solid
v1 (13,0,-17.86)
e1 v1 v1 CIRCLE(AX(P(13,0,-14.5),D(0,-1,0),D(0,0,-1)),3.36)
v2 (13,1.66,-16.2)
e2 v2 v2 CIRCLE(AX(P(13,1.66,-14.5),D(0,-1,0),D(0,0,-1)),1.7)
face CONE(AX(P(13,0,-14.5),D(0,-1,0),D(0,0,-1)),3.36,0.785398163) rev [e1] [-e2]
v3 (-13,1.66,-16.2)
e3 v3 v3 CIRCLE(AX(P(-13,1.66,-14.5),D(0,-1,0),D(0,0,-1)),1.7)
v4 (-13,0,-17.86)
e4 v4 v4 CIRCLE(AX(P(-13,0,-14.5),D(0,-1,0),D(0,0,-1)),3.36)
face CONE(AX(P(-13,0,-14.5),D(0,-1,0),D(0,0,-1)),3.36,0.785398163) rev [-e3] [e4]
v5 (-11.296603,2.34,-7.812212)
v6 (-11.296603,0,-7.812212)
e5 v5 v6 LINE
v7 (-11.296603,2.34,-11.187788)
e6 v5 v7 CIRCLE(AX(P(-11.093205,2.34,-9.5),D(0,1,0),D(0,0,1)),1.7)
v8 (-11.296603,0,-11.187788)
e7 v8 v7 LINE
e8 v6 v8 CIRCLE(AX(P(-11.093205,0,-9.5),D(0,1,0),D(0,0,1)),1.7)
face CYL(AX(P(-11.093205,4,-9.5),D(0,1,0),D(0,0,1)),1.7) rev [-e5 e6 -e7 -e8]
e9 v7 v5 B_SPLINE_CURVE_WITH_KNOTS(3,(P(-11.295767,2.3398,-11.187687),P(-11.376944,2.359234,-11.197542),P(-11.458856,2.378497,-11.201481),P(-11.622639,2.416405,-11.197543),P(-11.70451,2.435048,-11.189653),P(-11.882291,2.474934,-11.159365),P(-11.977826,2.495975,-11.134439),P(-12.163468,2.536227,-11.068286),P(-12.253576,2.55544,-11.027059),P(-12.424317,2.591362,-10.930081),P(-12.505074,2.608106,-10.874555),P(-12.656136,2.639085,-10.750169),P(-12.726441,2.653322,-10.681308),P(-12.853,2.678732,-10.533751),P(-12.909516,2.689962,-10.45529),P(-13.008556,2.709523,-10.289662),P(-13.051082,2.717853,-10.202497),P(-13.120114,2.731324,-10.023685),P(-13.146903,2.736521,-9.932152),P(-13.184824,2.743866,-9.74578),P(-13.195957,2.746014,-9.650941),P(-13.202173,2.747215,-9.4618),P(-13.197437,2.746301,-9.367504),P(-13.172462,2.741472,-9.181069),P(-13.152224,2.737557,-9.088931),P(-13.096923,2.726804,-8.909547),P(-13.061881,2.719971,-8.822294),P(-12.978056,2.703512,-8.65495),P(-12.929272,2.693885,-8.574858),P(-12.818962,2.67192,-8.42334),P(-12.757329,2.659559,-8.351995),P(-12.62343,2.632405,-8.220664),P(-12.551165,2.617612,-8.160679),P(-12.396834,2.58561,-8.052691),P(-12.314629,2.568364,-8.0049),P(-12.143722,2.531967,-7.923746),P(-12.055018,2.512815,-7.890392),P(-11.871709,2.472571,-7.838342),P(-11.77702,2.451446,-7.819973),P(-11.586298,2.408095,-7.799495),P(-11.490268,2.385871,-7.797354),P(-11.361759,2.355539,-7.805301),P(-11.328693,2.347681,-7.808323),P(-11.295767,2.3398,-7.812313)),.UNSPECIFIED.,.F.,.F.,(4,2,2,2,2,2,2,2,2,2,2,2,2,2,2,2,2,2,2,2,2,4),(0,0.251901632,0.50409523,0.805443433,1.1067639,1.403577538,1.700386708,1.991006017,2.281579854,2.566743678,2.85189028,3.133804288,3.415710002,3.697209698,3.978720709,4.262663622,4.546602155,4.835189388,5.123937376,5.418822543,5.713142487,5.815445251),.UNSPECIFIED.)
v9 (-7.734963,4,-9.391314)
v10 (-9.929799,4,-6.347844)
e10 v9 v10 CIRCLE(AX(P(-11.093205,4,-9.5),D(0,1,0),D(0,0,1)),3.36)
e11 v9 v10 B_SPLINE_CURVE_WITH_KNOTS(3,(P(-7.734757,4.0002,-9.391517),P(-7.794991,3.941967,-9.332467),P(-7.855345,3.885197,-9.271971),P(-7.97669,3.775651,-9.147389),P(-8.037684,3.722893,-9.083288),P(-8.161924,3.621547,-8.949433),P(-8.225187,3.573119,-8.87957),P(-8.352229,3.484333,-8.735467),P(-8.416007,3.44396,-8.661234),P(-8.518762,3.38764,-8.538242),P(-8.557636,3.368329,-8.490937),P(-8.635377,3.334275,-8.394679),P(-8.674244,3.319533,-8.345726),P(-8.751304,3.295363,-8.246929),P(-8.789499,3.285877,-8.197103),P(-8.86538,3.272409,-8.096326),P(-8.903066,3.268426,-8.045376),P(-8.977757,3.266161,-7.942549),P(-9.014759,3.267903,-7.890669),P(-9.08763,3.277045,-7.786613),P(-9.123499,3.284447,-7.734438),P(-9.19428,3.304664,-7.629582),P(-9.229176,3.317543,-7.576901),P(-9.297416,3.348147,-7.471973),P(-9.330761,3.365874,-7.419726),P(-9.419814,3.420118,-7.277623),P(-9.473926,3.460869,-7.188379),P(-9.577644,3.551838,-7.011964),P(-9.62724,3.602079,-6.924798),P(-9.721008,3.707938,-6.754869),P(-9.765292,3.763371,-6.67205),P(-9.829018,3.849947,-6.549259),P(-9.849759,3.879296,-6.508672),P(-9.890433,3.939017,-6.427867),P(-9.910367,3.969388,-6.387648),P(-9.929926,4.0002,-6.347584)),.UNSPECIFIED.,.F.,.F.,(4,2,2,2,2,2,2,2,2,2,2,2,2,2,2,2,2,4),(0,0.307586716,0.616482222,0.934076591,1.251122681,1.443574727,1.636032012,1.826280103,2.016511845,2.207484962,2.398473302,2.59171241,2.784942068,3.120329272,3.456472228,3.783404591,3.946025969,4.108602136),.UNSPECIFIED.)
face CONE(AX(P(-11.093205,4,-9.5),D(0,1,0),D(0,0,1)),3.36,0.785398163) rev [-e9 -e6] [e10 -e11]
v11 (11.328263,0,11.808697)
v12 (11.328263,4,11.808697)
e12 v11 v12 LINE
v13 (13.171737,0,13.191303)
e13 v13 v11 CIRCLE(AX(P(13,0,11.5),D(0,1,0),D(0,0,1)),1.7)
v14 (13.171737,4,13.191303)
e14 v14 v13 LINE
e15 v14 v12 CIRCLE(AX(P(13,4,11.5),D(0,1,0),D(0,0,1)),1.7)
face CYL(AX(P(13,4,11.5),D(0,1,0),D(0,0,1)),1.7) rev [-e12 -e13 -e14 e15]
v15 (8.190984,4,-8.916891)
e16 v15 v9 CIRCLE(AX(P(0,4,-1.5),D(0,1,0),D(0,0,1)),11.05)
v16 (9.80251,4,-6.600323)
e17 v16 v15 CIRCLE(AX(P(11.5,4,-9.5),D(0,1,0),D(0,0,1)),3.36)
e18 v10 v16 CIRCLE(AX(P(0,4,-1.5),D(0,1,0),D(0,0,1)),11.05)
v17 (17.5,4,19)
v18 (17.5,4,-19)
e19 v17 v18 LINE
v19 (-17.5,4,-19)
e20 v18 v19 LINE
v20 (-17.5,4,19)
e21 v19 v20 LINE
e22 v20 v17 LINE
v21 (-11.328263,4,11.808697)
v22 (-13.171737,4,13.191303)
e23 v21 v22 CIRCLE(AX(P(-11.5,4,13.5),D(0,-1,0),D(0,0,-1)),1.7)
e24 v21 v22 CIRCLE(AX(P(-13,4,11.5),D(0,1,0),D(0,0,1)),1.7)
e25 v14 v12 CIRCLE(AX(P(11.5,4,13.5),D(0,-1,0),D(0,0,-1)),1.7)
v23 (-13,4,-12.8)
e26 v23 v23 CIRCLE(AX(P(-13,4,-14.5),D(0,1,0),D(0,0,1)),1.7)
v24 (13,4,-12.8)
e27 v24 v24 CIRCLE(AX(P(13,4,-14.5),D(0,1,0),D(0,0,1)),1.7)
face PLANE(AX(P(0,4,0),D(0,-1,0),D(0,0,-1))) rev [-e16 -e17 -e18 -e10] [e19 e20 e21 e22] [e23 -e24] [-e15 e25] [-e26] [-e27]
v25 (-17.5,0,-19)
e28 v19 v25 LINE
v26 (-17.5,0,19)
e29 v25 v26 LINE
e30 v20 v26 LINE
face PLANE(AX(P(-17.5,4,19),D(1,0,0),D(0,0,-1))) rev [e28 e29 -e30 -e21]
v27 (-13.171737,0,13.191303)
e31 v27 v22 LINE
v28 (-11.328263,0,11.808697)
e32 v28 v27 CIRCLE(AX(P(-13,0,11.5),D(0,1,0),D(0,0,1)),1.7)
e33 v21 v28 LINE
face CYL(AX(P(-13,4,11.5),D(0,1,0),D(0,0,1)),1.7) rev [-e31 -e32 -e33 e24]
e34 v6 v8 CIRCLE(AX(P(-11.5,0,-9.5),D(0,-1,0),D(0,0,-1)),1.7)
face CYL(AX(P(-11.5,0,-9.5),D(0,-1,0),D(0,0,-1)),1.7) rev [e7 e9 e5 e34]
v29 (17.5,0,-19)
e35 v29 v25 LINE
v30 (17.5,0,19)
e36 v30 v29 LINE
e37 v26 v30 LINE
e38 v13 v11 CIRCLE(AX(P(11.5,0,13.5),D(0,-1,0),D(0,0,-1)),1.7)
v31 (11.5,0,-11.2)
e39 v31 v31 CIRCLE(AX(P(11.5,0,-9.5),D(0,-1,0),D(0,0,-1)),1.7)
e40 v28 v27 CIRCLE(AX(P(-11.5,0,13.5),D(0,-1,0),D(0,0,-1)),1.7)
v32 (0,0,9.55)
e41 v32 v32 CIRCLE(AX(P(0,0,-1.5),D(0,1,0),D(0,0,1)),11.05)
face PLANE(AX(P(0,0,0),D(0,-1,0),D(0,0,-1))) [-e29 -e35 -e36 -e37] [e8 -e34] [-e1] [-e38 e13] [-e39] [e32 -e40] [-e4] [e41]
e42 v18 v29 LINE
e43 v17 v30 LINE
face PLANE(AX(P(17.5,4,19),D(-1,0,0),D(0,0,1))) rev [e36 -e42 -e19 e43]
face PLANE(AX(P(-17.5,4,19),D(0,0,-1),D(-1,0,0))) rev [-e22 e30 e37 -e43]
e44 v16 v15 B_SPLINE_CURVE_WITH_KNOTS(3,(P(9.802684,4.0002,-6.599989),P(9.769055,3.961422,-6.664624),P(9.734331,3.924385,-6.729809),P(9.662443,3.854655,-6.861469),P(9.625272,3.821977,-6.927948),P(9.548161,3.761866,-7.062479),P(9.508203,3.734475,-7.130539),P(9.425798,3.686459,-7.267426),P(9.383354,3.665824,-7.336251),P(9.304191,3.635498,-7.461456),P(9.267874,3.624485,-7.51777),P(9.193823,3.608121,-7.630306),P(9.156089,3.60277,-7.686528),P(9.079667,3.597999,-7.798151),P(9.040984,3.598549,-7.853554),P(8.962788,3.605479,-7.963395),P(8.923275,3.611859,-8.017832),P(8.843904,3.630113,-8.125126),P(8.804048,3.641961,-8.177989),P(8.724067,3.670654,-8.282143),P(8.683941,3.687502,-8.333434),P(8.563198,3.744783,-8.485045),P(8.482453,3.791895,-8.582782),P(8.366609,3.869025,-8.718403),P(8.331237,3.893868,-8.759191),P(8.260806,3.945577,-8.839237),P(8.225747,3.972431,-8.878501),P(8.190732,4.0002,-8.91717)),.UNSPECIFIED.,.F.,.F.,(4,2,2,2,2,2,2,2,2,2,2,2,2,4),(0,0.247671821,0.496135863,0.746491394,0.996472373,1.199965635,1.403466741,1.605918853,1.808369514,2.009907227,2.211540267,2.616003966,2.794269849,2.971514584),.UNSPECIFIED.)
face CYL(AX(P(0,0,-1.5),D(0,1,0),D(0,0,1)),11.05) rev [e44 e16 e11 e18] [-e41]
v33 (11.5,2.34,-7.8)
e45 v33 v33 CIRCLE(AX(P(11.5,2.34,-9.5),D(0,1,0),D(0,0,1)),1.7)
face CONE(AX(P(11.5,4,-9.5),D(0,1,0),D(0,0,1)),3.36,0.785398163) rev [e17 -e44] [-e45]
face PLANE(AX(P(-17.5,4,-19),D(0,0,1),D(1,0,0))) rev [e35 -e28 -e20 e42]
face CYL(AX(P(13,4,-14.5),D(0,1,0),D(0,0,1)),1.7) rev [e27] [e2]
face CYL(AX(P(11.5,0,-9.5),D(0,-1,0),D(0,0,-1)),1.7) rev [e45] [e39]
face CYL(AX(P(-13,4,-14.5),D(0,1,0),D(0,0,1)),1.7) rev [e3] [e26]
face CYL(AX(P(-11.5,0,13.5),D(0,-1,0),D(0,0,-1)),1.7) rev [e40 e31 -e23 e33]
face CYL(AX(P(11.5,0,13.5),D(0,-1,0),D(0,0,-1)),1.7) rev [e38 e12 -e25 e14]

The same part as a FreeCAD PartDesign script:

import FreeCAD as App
import Part
import Sketcher
Q = App.Units.Quantity


def add_polygon(sketch, points):
    """Adds a closed chain of lines whose ends are joined by coincident constraints."""
    first, n = sketch.GeometryCount, len(points)
    for a, b in zip(points, points[1:] + points[:1]):
        sketch.addGeometry(Part.LineSegment(App.Vector(*a, 0), App.Vector(*b, 0)), False)
    for i in range(n):
        sketch.addConstraint(Sketcher.Constraint("Coincident", first + i, 2, first + (i + 1) % n, 1))

doc = App.newDocument("Part")
body = doc.addObject("PartDesign::Body", "Body")

# Sketch on XZ plane
sketch1 = body.newObject("Sketcher::SketchObject", "Sketch")
sketch1.AttachmentSupport = (doc.getObject("XZ_Plane"), [""])
sketch1.MapMode = "FlatFace"
add_polygon(sketch1, [(-18, -19), (-18, 19), (18, 19), (18, -19)])  # lines 0-3
sketch1.addConstraint([
    Sketcher.Constraint("Vertical", 0),
    Sketcher.Constraint("Horizontal", 1),
    Sketcher.Constraint("Vertical", 2),
    Sketcher.Constraint("Horizontal", 3),
    Sketcher.Constraint("Symmetric", 0, 2, 2, 2, -1, 1),
    Sketcher.Constraint("DistanceX", 1, 1, 1, 2, Q("35 mm")),
    Sketcher.Constraint("DistanceY", 0, 1, 0, 2, Q("38 mm")),
])
pad1 = body.newObject("PartDesign::Pad", "Pad")
pad1.Profile = sketch1
pad1.Length = 4
pad1.Reversed = True

# Sketch on XZ plane
sketch2 = body.newObject("Sketcher::SketchObject", "Sketch001")
sketch2.AttachmentSupport = (doc.getObject("XZ_Plane"), [""])
sketch2.MapMode = "FlatFace"
sketch2.addGeometry([
    Part.Circle(App.Vector(11.5, 13.5, 0), App.Vector(0, 0, 1), 1.7),
    Part.Circle(App.Vector(11.5, -9.5, 0), App.Vector(0, 0, 1), 1.7),
    Part.Circle(App.Vector(-11.5, -9.5, 0), App.Vector(0, 0, 1), 1.7),
    Part.Circle(App.Vector(-11.5, 13.5, 0), App.Vector(0, 0, 1), 1.7),
], False)
sketch2.addConstraint([
    Sketcher.Constraint("Equal", 0, 1),
    Sketcher.Constraint("Equal", 1, 2),
    Sketcher.Constraint("Equal", 2, 3),
    Sketcher.Constraint("Symmetric", 1, 3, 2, 3, -2),
    Sketcher.Constraint("Symmetric", 0, 3, 3, 3, -2),
    Sketcher.Constraint("Vertical", 0, 3, 1, 3),
    Sketcher.Constraint("Diameter", 0, Q("3.4 mm")),
    Sketcher.Constraint("DistanceY", 1, 3, 0, 3, Q("23 mm")),
    Sketcher.Constraint("DistanceX", 2, 3, 1, 3, Q("23 mm")),
    Sketcher.Constraint("DistanceY", -1, 1, 0, 3, Q("13.5 mm")),
])
doc.recompute()
hole = body.newObject("PartDesign::Hole", "Hole")
hole.Profile = sketch2
hole.ThreadType = "None"
hole.Diameter = 3.4
hole.DepthType = "ThroughAll"

# Sketch on XZ plane
sketch3 = body.newObject("Sketcher::SketchObject", "Sketch002")
sketch3.AttachmentSupport = (doc.getObject("XZ_Plane"), [""])
sketch3.MapMode = "FlatFace"
sketch3.AttachmentOffset = App.Placement(App.Vector(0, 0, -4), App.Rotation())
sketch3.addGeometry(Part.Circle(App.Vector(0, -2, 0), App.Vector(0, 0, 1), 11), False)
sketch3.addConstraint([
    Sketcher.Constraint("PointOnObject", 0, 3, -2),
    Sketcher.Constraint("Diameter", 0, Q("22.1 mm")),
    Sketcher.Constraint("DistanceY", 0, 3, -1, 1, Q("1.5 mm")),
])
pocket1 = body.newObject("PartDesign::Pocket", "Pocket")
pocket1.Profile = sketch3
pocket1.Type = "ThroughAll"
pocket1.Reversed = True

# Sketch on XZ plane
sketch4 = body.newObject("Sketcher::SketchObject", "Sketch003")
sketch4.AttachmentSupport = (doc.getObject("XZ_Plane"), [""])
sketch4.MapMode = "FlatFace"
sketch4.AttachmentOffset = App.Placement(App.Vector(0, 0, -4), App.Rotation())
sketch4.addGeometry([
    Part.Circle(App.Vector(-13, -14.5, 0), App.Vector(0, 0, 1), 1.7),
    Part.Circle(App.Vector(13, -14.5, 0), App.Vector(0, 0, 1), 1.7),
    Part.Circle(App.Vector(-13, 11.5, 0), App.Vector(0, 0, 1), 1.7),
    Part.Circle(App.Vector(13, 11.5, 0), App.Vector(0, 0, 1), 1.7),
], False)
sketch4.addConstraint([
    Sketcher.Constraint("Equal", 0, 1),
    Sketcher.Constraint("Equal", 1, 2),
    Sketcher.Constraint("Equal", 2, 3),
    Sketcher.Constraint("Symmetric", 0, 3, 1, 3, -2),
    Sketcher.Constraint("Symmetric", 2, 3, 3, 3, -2),
    Sketcher.Constraint("Vertical", 0, 3, 2, 3),
    Sketcher.Constraint("Diameter", 0, Q("3.4 mm")),
    Sketcher.Constraint("DistanceX", 0, 3, -1, 1, Q("13 mm")),
    Sketcher.Constraint("DistanceY", 0, 3, 2, 3, Q("26 mm")),
    Sketcher.Constraint("DistanceY", 0, 3, -1, 1, Q("14.5 mm")),
])
doc.recompute()
hole2 = body.newObject("PartDesign::Hole", "Hole001")
hole2.Profile = sketch4
hole2.ThreadType = "None"
hole2.Diameter = 3.4
hole2.DepthType = "ThroughAll"
hole2.Reversed = True

# Sketch on XZ plane
sketch5 = body.newObject("Sketcher::SketchObject", "Sketch004")
sketch5.AttachmentSupport = (doc.getObject("XZ_Plane"), [""])
sketch5.MapMode = "FlatFace"
sketch5.addGeometry([
    Part.Circle(App.Vector(13, -14.5, 0), App.Vector(0, 0, 1), 1.7),
    Part.Circle(App.Vector(-13, -14.5, 0), App.Vector(0, 0, 1), 1.7),
], False)
sketch5.addConstraint([
    Sketcher.Constraint("Equal", 0, 1),
    Sketcher.Constraint("Symmetric", 0, 3, 1, 3, -2),
    Sketcher.Constraint("Diameter", 0, Q("3.4 mm")),
    Sketcher.Constraint("DistanceX", -1, 1, 0, 3, Q("13 mm")),
    Sketcher.Constraint("DistanceY", 0, 3, -1, 1, Q("14.5 mm")),
])
doc.recompute()
hole3 = body.newObject("PartDesign::Hole", "Hole002")
hole3.Profile = sketch5
hole3.ThreadType = "None"
hole3.Diameter = 3.4
hole3.DepthType = "ThroughAll"
hole3.HoleCutType = "Countersink"
hole3.HoleCutDiameter = 6.72
hole3.HoleCutCountersinkAngle = 90

# Sketch on XZ plane
sketch6 = body.newObject("Sketcher::SketchObject", "Sketch005")
sketch6.AttachmentSupport = (doc.getObject("XZ_Plane"), [""])
sketch6.MapMode = "FlatFace"
sketch6.AttachmentOffset = App.Placement(App.Vector(0, 0, -4), App.Rotation())
sketch6.addGeometry([
    Part.Circle(App.Vector(11.5, -9.5, 0), App.Vector(0, 0, 1), 1.7),
    Part.Circle(App.Vector(-11.1, -9.5, 0), App.Vector(0, 0, 1), 1.7),
], False)
sketch6.addConstraint([
    Sketcher.Constraint("Equal", 0, 1),
    Sketcher.Constraint("Horizontal", 0, 3, 1, 3),
    Sketcher.Constraint("Diameter", 0, Q("3.4 mm")),
    Sketcher.Constraint("DistanceX", -1, 1, 0, 3, Q("11.5 mm")),
    Sketcher.Constraint("DistanceY", 0, 3, -1, 1, Q("9.5 mm")),
    Sketcher.Constraint("DistanceX", 1, 3, -1, 1, Q("11.093205 mm")),
])
doc.recompute()
hole4 = body.newObject("PartDesign::Hole", "Hole003")
hole4.Profile = sketch6
hole4.ThreadType = "None"
hole4.Diameter = 3.4
hole4.DepthType = "ThroughAll"
hole4.HoleCutType = "Countersink"
hole4.HoleCutDiameter = 6.72
hole4.HoleCutCountersinkAngle = 90
hole4.Reversed = True

doc.recompute()
